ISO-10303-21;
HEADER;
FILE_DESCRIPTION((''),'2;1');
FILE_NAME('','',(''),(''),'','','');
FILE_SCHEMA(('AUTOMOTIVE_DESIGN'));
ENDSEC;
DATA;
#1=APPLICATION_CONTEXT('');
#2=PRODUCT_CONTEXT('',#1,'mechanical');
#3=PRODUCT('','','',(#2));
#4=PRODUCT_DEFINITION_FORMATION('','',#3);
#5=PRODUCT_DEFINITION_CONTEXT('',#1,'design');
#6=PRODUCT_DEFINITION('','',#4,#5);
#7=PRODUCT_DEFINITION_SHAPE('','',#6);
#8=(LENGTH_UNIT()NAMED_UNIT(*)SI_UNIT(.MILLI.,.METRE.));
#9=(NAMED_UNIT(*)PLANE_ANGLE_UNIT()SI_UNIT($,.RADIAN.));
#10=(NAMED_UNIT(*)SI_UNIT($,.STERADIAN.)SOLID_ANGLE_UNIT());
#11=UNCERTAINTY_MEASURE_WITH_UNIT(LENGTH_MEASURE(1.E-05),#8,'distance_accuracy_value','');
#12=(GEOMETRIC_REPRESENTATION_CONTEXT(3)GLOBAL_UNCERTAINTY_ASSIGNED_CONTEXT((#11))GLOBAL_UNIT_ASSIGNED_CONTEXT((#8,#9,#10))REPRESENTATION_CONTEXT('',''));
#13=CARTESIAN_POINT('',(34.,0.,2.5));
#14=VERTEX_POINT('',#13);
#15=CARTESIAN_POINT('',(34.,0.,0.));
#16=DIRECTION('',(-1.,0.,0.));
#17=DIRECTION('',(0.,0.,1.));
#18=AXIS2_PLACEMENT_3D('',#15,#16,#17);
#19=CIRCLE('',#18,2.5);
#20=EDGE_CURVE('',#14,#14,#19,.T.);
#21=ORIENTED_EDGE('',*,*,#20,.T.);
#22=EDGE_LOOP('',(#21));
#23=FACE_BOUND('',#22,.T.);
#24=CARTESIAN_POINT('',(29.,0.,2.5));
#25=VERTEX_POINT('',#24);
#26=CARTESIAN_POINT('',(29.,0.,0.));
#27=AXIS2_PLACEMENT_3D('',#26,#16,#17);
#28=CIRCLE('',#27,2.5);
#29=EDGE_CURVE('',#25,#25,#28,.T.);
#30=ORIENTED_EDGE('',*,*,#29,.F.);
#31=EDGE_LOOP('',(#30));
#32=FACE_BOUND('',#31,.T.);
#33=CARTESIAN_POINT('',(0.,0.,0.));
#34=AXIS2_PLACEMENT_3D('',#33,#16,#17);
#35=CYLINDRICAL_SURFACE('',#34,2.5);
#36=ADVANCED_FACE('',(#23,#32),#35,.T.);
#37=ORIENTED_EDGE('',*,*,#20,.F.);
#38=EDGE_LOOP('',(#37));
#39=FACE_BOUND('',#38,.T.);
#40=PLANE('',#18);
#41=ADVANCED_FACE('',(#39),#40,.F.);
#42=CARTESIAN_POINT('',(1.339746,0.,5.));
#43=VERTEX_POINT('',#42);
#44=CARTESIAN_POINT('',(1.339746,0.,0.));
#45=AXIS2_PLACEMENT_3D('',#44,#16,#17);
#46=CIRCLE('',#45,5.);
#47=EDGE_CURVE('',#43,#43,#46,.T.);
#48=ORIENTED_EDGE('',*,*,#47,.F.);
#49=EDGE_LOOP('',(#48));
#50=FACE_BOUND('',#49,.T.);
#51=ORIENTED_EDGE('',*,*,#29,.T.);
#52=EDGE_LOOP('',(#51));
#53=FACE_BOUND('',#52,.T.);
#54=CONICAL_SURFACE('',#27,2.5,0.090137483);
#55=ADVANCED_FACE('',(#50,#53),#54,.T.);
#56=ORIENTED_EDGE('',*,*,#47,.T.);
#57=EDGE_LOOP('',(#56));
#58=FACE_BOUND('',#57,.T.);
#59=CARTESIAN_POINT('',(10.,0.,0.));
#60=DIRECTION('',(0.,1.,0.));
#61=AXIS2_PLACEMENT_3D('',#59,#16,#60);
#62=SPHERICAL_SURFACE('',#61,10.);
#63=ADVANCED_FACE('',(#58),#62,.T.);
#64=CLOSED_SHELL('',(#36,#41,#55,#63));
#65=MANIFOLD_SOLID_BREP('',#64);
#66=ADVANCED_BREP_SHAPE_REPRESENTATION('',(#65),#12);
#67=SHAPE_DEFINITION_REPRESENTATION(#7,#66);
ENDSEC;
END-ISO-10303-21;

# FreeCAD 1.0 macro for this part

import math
import FreeCAD as App
import Part
import Sketcher
Q = App.Units.Quantity

doc = App.newDocument("Part")
body = doc.addObject("PartDesign::Body", "Body")

sketch1 = body.newObject("Sketcher::SketchObject", "Sketch")
sketch1.AttachmentSupport = (doc.getObject("XY_Plane"), [""])
sketch1.MapMode = "FlatFace"
sketch1.addGeometry([
    Part.ArcOfCircle(Part.Circle(App.Vector(10, 0, 0), App.Vector(0, 0, 1), 10), math.radians(150), math.radians(180)),
    Part.LineSegment(App.Vector(0, 0, 0), App.Vector(34, 0, 0)),
    Part.LineSegment(App.Vector(34, 0, 0), App.Vector(34, 2.5, 0)),
    Part.LineSegment(App.Vector(34, 2.5, 0), App.Vector(29, 2.5, 0)),
    Part.LineSegment(App.Vector(29, 2.5, 0), App.Vector(1.3, 5, 0)),
], False)
sketch1.addConstraint([
    Sketcher.Constraint("Coincident", 0, 2, 1, 1),
    Sketcher.Constraint("Coincident", 1, 2, 2, 1),
    Sketcher.Constraint("Coincident", 2, 2, 3, 1),
    Sketcher.Constraint("Coincident", 3, 2, 4, 1),
    Sketcher.Constraint("Coincident", 4, 2, 0, 1),
    Sketcher.Constraint("Horizontal", 1),
    Sketcher.Constraint("Vertical", 2),
    Sketcher.Constraint("Horizontal", 3),
    Sketcher.Constraint("Coincident", 0, 2, -1, 1),
    Sketcher.Constraint("PointOnObject", 0, 3, -1),
    Sketcher.Constraint("Radius", 0, Q("10 mm")),
    Sketcher.Constraint("DistanceX", 1, 1, 1, 2, Q("34 mm")),
    Sketcher.Constraint("DistanceX", 3, 2, 3, 1, Q("5 mm")),
    Sketcher.Constraint("DistanceY", 2, 1, 2, 2, Q("2.5 mm")),
    Sketcher.Constraint("DistanceY", -1, 1, 4, 2, Q("5 mm")),
])
revolution = body.newObject("PartDesign::Revolution", "Revolution")
revolution.Profile = sketch1
revolution.ReferenceAxis = (sketch1, ["H_Axis"])
revolution.Angle = 360

doc.recompute()
